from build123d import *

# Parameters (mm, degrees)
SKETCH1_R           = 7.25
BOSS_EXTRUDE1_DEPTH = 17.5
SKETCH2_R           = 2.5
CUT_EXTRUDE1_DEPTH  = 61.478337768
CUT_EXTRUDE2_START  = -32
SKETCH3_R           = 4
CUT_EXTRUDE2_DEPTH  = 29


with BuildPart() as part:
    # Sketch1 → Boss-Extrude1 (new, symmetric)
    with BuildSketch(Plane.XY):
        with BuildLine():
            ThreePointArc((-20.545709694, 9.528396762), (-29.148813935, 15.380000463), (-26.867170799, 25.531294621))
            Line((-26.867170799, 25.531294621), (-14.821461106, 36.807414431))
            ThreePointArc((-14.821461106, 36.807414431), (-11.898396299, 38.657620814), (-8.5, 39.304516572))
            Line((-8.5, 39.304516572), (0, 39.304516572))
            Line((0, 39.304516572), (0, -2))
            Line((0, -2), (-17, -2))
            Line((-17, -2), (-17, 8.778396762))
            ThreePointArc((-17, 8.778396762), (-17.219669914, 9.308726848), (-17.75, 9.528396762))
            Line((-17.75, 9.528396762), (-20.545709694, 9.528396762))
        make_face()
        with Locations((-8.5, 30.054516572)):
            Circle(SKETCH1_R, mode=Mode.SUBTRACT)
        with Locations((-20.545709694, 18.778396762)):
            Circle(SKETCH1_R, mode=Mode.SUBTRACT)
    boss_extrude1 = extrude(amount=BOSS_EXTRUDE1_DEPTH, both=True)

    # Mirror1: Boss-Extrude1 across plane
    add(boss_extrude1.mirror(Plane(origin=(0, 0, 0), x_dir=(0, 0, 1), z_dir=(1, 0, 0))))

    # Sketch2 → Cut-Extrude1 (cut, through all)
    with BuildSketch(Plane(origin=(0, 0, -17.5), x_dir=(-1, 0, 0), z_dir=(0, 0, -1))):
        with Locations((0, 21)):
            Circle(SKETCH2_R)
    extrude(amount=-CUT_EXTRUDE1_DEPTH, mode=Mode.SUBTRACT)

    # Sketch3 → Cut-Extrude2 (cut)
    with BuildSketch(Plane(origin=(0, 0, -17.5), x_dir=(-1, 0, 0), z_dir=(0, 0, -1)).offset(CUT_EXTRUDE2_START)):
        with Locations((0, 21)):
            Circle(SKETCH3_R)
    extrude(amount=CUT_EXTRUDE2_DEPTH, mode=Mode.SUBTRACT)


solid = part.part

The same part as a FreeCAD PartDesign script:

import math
import FreeCAD as App
import Part
import Sketcher
from FreeCAD import Vector
Q = App.Units.Quantity

doc = App.newDocument("Part")
body = doc.addObject("PartDesign::Body", "Body")

# Sketch on XY plane
sketch1 = doc.addObject("Sketcher::SketchObject", "Sketch")
body.addObject(sketch1)
sketch1.AttachmentSupport = (doc.XY_Plane, [""])
sketch1.MapMode = "FlatFace"
sketch1.addGeometry([
    Part.ArcOfCircle(Part.Circle(Vector(-20.5, 18.8, 0), Vector(0, 0, 1), 9.2), math.radians(133), math.radians(270)),  # 0
    Part.LineSegment(Vector(-20.5, 9.5, 0), Vector(-17.8, 9.5, 0)),  # 1
    Part.ArcOfCircle(Part.Circle(Vector(-17.8, 8.8, 0), Vector(0, 0, 1), 0.8), math.radians(0), math.radians(90)),  # 2
    Part.LineSegment(Vector(-17, 8.8, 0), Vector(-17, -2, 0)),  # 3
    Part.LineSegment(Vector(-17, -2, 0), Vector(0, -2, 0)),  # 4
    Part.LineSegment(Vector(0, -2, 0), Vector(0, 39.3, 0)),  # 5
    Part.LineSegment(Vector(0, 39.3, 0), Vector(-8.5, 39.3, 0)),  # 6
    Part.ArcOfCircle(Part.Circle(Vector(-8.5, 30.1, 0), Vector(0, 0, 1), 9.3), math.radians(90), math.radians(133)),  # 7
    Part.LineSegment(Vector(-14.8, 36.8, 0), Vector(-26.9, 25.5, 0)),  # 8
    Part.Circle(Vector(-20.5, 18.8, 0), Vector(0, 0, 1), 7.2),  # 9
    Part.Circle(Vector(-8.5, 30.1, 0), Vector(0, 0, 1), 7.2),  # 10
], False)
sketch1.addConstraint([
    Sketcher.Constraint("Tangent", 0, 2, 1, 1),
    Sketcher.Constraint("Tangent", 1, 2, 2, 2),
    Sketcher.Constraint("Tangent", 2, 1, 3, 1),
    Sketcher.Constraint("Coincident", 3, 2, 4, 1),
    Sketcher.Constraint("Coincident", 4, 2, 5, 1),
    Sketcher.Constraint("Coincident", 5, 2, 6, 1),
    Sketcher.Constraint("Tangent", 6, 2, 7, 1),
    Sketcher.Constraint("Tangent", 7, 2, 8, 1),
    Sketcher.Constraint("Tangent", 8, 2, 0, 1),
    Sketcher.Constraint("Horizontal", 1),
    Sketcher.Constraint("Vertical", 3),
    Sketcher.Constraint("Horizontal", 4),
    Sketcher.Constraint("Vertical", 5),
    Sketcher.Constraint("Horizontal", 6),
    Sketcher.Constraint("Coincident", 9, 3, 0, 3),
    Sketcher.Constraint("Coincident", 10, 3, 7, 3),
    Sketcher.Constraint("Equal", 0, 7),
    Sketcher.Constraint("Equal", 9, 10),
    Sketcher.Constraint("PointOnObject", 4, 2, -2),
    Sketcher.Constraint("Diameter", 9, 14.5),
    Sketcher.Constraint("DistanceX", 4, 1, 4, 2, 17.0),
    Sketcher.Constraint("Radius", 0, 9.25),
    Sketcher.Constraint("Radius", 2, 0.75),
    Sketcher.Constraint("DistanceX", 6, 2, 6, 1, 8.5),
    Sketcher.Constraint("DistanceY", 3, 2, -1, 1, 2.0),
    Sketcher.Constraint("Distance", 8, 16.5),
    Sketcher.Constraint("Angle", 8, Q("-136.89 deg")),
    Sketcher.Constraint("DistanceY", 3, 2, 3, 1, 10.778397),
])
pad1 = doc.addObject("PartDesign::Pad", "Pad")
body.addObject(pad1)
pad1.Profile = sketch1
pad1.Length = 35
pad1.Midplane = True
doc.recompute()

mirrored = doc.addObject("PartDesign::Mirrored", "Mirrored")
body.addObject(mirrored)
mirrored.Originals = [pad1]
mirrored.MirrorPlane = (doc.YZ_Plane, [""])
body.Tip = mirrored

# Sketch on XY plane
sketch2 = doc.addObject("Sketcher::SketchObject", "Sketch001")
body.addObject(sketch2)
sketch2.AttachmentSupport = (doc.XY_Plane, [""])
sketch2.MapMode = "FlatFace"
sketch2.AttachmentOffset = App.Placement(Vector(0, 0, -17.5), App.Rotation())
sketch2.addGeometry(Part.Circle(Vector(0, 21, 0), Vector(0, 0, 1), 2.5), False)
sketch2.addConstraint([
    Sketcher.Constraint("PointOnObject", 0, 3, -2),
    Sketcher.Constraint("Diameter", 0, 5.0),
    Sketcher.Constraint("DistanceY", -1, 1, 0, 3, 21.0),
])
pocket1 = doc.addObject("PartDesign::Pocket", "Pocket")
body.addObject(pocket1)
pocket1.Profile = sketch2
pocket1.Type = "ThroughAll"
pocket1.Reversed = True

# Sketch on XY plane
sketch3 = doc.addObject("Sketcher::SketchObject", "Sketch002")
body.addObject(sketch3)
sketch3.AttachmentSupport = (doc.XY_Plane, [""])
sketch3.MapMode = "FlatFace"
sketch3.AttachmentOffset = App.Placement(Vector(0, 0, 14.5), App.Rotation())
sketch3.addGeometry(Part.Circle(Vector(0, 21, 0), Vector(0, 0, 1), 4), False)
sketch3.addConstraint([
    Sketcher.Constraint("PointOnObject", 0, 3, -2),
    Sketcher.Constraint("Diameter", 0, 8.0),
    Sketcher.Constraint("DistanceY", -1, 1, 0, 3, 21.0),
])
pocket2 = doc.addObject("PartDesign::Pocket", "Pocket001")
body.addObject(pocket2)
pocket2.Profile = sketch3
pocket2.Length = 29

doc.recompute()
